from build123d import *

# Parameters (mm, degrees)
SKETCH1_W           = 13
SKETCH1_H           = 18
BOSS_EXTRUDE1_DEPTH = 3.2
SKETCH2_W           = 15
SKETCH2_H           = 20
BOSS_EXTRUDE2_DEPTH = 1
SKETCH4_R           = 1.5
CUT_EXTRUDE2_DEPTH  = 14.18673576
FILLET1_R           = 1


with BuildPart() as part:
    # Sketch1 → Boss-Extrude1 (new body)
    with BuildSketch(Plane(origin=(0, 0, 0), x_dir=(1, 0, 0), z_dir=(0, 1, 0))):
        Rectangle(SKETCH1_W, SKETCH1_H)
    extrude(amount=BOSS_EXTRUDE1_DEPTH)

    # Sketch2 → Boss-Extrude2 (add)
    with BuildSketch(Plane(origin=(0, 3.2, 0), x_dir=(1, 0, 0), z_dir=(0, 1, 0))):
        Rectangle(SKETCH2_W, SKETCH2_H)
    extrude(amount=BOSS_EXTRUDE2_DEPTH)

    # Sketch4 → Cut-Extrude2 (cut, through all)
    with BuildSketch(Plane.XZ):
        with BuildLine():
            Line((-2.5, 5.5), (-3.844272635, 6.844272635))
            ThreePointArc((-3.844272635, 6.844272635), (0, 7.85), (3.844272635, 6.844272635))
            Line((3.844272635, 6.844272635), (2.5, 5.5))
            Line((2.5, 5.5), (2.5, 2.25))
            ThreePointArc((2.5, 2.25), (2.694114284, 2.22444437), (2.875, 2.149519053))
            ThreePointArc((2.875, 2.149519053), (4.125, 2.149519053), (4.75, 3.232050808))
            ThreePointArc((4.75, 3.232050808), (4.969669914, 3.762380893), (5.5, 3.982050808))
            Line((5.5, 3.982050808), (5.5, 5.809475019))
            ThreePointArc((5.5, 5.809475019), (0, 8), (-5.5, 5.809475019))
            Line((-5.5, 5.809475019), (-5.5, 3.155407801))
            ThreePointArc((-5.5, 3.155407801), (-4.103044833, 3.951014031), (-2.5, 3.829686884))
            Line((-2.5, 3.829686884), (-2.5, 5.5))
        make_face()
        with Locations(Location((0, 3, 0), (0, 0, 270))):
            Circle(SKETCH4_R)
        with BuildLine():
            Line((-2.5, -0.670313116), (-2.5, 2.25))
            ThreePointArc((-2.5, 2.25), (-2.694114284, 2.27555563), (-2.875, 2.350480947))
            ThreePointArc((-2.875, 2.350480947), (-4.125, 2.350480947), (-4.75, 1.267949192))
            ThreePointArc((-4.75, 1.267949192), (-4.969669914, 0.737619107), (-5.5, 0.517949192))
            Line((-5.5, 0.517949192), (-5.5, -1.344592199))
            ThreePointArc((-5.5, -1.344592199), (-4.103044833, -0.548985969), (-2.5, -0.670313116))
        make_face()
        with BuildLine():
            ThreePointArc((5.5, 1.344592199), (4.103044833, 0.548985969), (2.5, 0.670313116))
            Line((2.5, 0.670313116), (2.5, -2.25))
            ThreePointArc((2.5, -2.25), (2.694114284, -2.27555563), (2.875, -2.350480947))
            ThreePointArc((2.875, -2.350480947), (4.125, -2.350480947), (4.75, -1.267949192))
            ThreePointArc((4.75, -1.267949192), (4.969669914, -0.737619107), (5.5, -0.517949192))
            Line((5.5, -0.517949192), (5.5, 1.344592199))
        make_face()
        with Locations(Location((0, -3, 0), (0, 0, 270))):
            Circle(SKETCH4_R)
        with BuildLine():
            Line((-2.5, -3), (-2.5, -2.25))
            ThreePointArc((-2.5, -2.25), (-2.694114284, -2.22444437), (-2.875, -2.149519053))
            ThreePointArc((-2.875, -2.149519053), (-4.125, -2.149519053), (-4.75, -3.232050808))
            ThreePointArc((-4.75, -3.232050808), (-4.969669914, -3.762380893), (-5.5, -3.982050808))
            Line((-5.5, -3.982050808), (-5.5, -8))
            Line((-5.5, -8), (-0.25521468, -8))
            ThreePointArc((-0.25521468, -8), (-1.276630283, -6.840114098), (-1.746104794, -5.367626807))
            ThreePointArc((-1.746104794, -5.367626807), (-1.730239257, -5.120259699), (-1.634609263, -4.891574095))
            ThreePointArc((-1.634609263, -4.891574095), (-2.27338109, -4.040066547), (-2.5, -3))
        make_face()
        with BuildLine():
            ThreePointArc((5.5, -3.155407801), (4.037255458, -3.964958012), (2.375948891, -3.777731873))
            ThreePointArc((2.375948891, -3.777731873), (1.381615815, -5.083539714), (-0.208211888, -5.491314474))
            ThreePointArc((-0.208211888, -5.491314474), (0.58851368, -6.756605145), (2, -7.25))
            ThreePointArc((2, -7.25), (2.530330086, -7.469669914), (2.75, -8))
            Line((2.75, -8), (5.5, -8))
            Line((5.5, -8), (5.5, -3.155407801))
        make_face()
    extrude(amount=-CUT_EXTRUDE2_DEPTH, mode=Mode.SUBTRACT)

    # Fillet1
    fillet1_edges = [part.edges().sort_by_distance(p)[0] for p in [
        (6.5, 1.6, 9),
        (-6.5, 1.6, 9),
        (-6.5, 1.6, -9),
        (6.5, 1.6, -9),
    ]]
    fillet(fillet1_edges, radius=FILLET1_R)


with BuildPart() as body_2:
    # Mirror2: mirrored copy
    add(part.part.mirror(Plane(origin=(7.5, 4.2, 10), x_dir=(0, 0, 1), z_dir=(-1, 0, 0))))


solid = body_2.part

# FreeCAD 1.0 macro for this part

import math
import FreeCAD as App
import Part
import Sketcher
Q = App.Units.Quantity


def edges_at(feature, points):
    """Names of the edges that pass closest to the given points."""
    edges = feature.Shape.Edges
    near = lambda p: min(range(len(edges)), key=lambda i: edges[i].distToShape(Part.Vertex(*p))[0])
    return sorted({f"Edge{near(p) + 1}" for p in points})


def add_polygon(sketch, points):
    """Adds a closed chain of lines whose ends are joined by coincident constraints."""
    first, n = sketch.GeometryCount, len(points)
    for a, b in zip(points, points[1:] + points[:1]):
        sketch.addGeometry(Part.LineSegment(App.Vector(*a, 0), App.Vector(*b, 0)), False)
    for i in range(n):
        sketch.addConstraint(Sketcher.Constraint("Coincident", first + i, 2, first + (i + 1) % n, 1))

doc = App.newDocument("Part")
params = doc.addObject("Spreadsheet::Sheet", "Params")
for row, (alias, value) in enumerate([
    ("sketch1_width", "13 mm"),
    ("sketch1_height", "18 mm"),
    ("pad1_length", "3.2 mm"),
    ("sketch2_width", "15 mm"),
    ("sketch2_height", "20 mm"),
    ("pad2_length", "1 mm"),
    ("sketch3_diameter", "3 mm"),
    ("sketch3_radius", "8 mm"),
    ("sketch3_radius2", "2.5 mm"),
    ("sketch3_radius3", "7.85 mm"),
    ("sketch3_radius4", "0.75 mm"),
    ("fillet_radius", "1 mm"),
], start=1):
    params.set(f"A{row}", alias)
    params.set(f"B{row}", "=" + value)
    params.setAlias(f"B{row}", alias)

body = doc.addObject("PartDesign::Body", "Body")

sketch1 = doc.addObject("Sketcher::SketchObject", "Sketch")
body.addObject(sketch1)
sketch1.AttachmentSupport = (doc.XZ_Plane, [""])
sketch1.MapMode = "FlatFace"
add_polygon(sketch1, [(-6.5, -9), (-6.5, 9), (6.5, 9), (6.5, -9)])
sketch1.addConstraint(Sketcher.Constraint("Vertical", 0))
sketch1.addConstraint(Sketcher.Constraint("Horizontal", 1))
sketch1.addConstraint(Sketcher.Constraint("Vertical", 2))
sketch1.addConstraint(Sketcher.Constraint("Horizontal", 3))
sketch1.addConstraint(Sketcher.Constraint("Symmetric", 0, 2, 2, 2, -1, 1))
sketch1.addConstraint(Sketcher.Constraint("DistanceX", 1, 1, 1, 2, Q("13 mm")))
sketch1.addConstraint(Sketcher.Constraint("DistanceY", 0, 1, 0, 2, Q("18 mm")))
sketch1.setExpression("Constraints[9]", "Params.sketch1_width")
sketch1.setExpression("Constraints[10]", "Params.sketch1_height")
pad1 = doc.addObject("PartDesign::Pad", "Pad")
body.addObject(pad1)
pad1.Profile = sketch1
pad1.setExpression("Length", "Params.pad1_length")
pad1.Reversed = True

sketch2 = doc.addObject("Sketcher::SketchObject", "Sketch001")
body.addObject(sketch2)
sketch2.AttachmentSupport = (doc.XZ_Plane, [""])
sketch2.MapMode = "FlatFace"
sketch2.AttachmentOffset = App.Placement(App.Vector(0, 0, -3.2), App.Rotation())
add_polygon(sketch2, [(-7.5, -10), (-7.5, 10), (7.5, 10), (7.5, -10)])
sketch2.addConstraint(Sketcher.Constraint("Vertical", 0))
sketch2.addConstraint(Sketcher.Constraint("Horizontal", 1))
sketch2.addConstraint(Sketcher.Constraint("Vertical", 2))
sketch2.addConstraint(Sketcher.Constraint("Horizontal", 3))
sketch2.addConstraint(Sketcher.Constraint("Symmetric", 0, 2, 2, 2, -1, 1))
sketch2.addConstraint(Sketcher.Constraint("DistanceX", 1, 1, 1, 2, Q("15 mm")))
sketch2.addConstraint(Sketcher.Constraint("DistanceY", 0, 1, 0, 2, Q("20 mm")))
sketch2.setExpression("Constraints[9]", "Params.sketch2_width")
sketch2.setExpression("Constraints[10]", "Params.sketch2_height")
pad2 = doc.addObject("PartDesign::Pad", "Pad001")
body.addObject(pad2)
pad2.Profile = sketch2
pad2.setExpression("Length", "Params.pad2_length")
pad2.Reversed = True

sketch3 = doc.addObject("Sketcher::SketchObject", "Sketch002")
body.addObject(sketch3)
sketch3.AttachmentSupport = (doc.XZ_Plane, [""])
sketch3.MapMode = "FlatFace"
sketch3.addGeometry(Part.LineSegment(App.Vector(-2.5, 5.5, 0), App.Vector(-3.844273, 6.844273, 0)), False)
sketch3.addGeometry(Part.ArcOfCircle(Part.Circle(App.Vector(0, 0, 0), App.Vector(0, 0, 1), 7.85), math.radians(60.678066), math.radians(119.321934)), False)
sketch3.addGeometry(Part.LineSegment(App.Vector(3.844273, 6.844273, 0), App.Vector(2.5, 5.5, 0)), False)
sketch3.addGeometry(Part.LineSegment(App.Vector(2.5, 5.5, 0), App.Vector(2.5, 2.25, 0)), False)
sketch3.addGeometry(Part.ArcOfCircle(Part.Circle(App.Vector(2.5, 1.5, 0), App.Vector(0, 0, 1), 0.75), math.radians(60), math.radians(90)), False)
sketch3.addGeometry(Part.ArcOfCircle(Part.Circle(App.Vector(3.5, 3.232051, 0), App.Vector(0, 0, 1), 1.25), math.radians(-120), math.radians(0)), False)
sketch3.addGeometry(Part.ArcOfCircle(Part.Circle(App.Vector(5.5, 3.232051, 0), App.Vector(0, 0, 1), 0.75), math.radians(90), math.radians(180)), False)
sketch3.addGeometry(Part.LineSegment(App.Vector(5.5, 3.982051, 0), App.Vector(5.5, 5.809475, 0)), False)
sketch3.addGeometry(Part.ArcOfCircle(Part.Circle(App.Vector(0, 0, 0), App.Vector(0, 0, 1), 8), math.radians(46.567463), math.radians(133.432537)), False)
sketch3.addGeometry(Part.LineSegment(App.Vector(-5.5, 5.809475, 0), App.Vector(-5.5, 3.155408, 0)), False)
sketch3.addGeometry(Part.ArcOfCircle(Part.Circle(App.Vector(-3.5, 1.267949, 0), App.Vector(0, 0, 1), 2.75), math.radians(68.676314), math.radians(136.658242)), False)
sketch3.addGeometry(Part.LineSegment(App.Vector(-2.5, 3.829687, 0), App.Vector(-2.5, 5.5, 0)), False)
sketch3.addGeometry(Part.Circle(App.Vector(0, 3, 0), App.Vector(0, 0, 1), 1.5), False)
sketch3.addGeometry(Part.LineSegment(App.Vector(-2.5, -0.670313, 0), App.Vector(-2.5, 2.25, 0)), False)
sketch3.addGeometry(Part.ArcOfCircle(Part.Circle(App.Vector(-2.5, 3, 0), App.Vector(0, 0, 1), 0.75), math.radians(-120), math.radians(-90)), False)
sketch3.addGeometry(Part.ArcOfCircle(Part.Circle(App.Vector(-3.5, 1.267949, 0), App.Vector(0, 0, 1), 1.25), math.radians(60), math.radians(180)), False)
sketch3.addGeometry(Part.ArcOfCircle(Part.Circle(App.Vector(-5.5, 1.267949, 0), App.Vector(0, 0, 1), 0.75), math.radians(-90), math.radians(0)), False)
sketch3.addGeometry(Part.LineSegment(App.Vector(-5.5, 0.517949, 0), App.Vector(-5.5, -1.344592, 0)), False)
sketch3.addGeometry(Part.ArcOfCircle(Part.Circle(App.Vector(-3.5, -3.232051, 0), App.Vector(0, 0, 1), 2.75), math.radians(68.676314), math.radians(136.658242)), False)
sketch3.addGeometry(Part.ArcOfCircle(Part.Circle(App.Vector(3.5, 3.232051, 0), App.Vector(0, 0, 1), 2.75), math.radians(-111.323686), math.radians(-43.341758)), False)
sketch3.addGeometry(Part.LineSegment(App.Vector(2.5, 0.670313, 0), App.Vector(2.5, -2.25, 0)), False)
sketch3.addGeometry(Part.ArcOfCircle(Part.Circle(App.Vector(2.5, -3, 0), App.Vector(0, 0, 1), 0.75), math.radians(60), math.radians(90)), False)
sketch3.addGeometry(Part.ArcOfCircle(Part.Circle(App.Vector(3.5, -1.267949, 0), App.Vector(0, 0, 1), 1.25), math.radians(-120), math.radians(0)), False)
sketch3.addGeometry(Part.ArcOfCircle(Part.Circle(App.Vector(5.5, -1.267949, 0), App.Vector(0, 0, 1), 0.75), math.radians(90), math.radians(180)), False)
sketch3.addGeometry(Part.LineSegment(App.Vector(5.5, -0.517949, 0), App.Vector(5.5, 1.344592, 0)), False)
sketch3.addGeometry(Part.Circle(App.Vector(0, -3, 0), App.Vector(0, 0, 1), 1.5), False)
sketch3.addGeometry(Part.LineSegment(App.Vector(-2.5, -3, 0), App.Vector(-2.5, -2.25, 0)), False)
sketch3.addGeometry(Part.ArcOfCircle(Part.Circle(App.Vector(-2.5, -1.5, 0), App.Vector(0, 0, 1), 0.75), math.radians(-120), math.radians(-90)), False)
sketch3.addGeometry(Part.ArcOfCircle(Part.Circle(App.Vector(-3.5, -3.232051, 0), App.Vector(0, 0, 1), 1.25), math.radians(60), math.radians(180)), False)
sketch3.addGeometry(Part.ArcOfCircle(Part.Circle(App.Vector(-5.5, -3.232051, 0), App.Vector(0, 0, 1), 0.75), math.radians(-90), math.radians(0)), False)
sketch3.addGeometry(Part.LineSegment(App.Vector(-5.5, -3.982051, 0), App.Vector(-5.5, -8, 0)), False)
sketch3.addGeometry(Part.LineSegment(App.Vector(-5.5, -8, 0), App.Vector(-0.255215, -8, 0)), False)
sketch3.addGeometry(Part.ArcOfCircle(Part.Circle(App.Vector(2, -4.984338, 0), App.Vector(0, 0, 1), 3.765662), math.radians(-174.158016), math.radians(-126.790389)), False)
sketch3.addGeometry(Part.ArcOfCircle(Part.Circle(App.Vector(-1, -5.291288, 0), App.Vector(0, 0, 1), 0.75), math.radians(147.794895), math.radians(185.841984)), False)
sketch3.addGeometry(Part.ArcOfCircle(Part.Circle(App.Vector(0, -3, 0), App.Vector(0, 0, 1), 2.5), math.radians(180), math.radians(229.167968)), False)
sketch3.addGeometry(Part.ArcOfCircle(Part.Circle(App.Vector(3.5, -1.267949, 0), App.Vector(0, 0, 1), 2.75), math.radians(-114.126076), math.radians(-43.341758)), False)
sketch3.addGeometry(Part.ArcOfCircle(Part.Circle(App.Vector(0, -3, 0), App.Vector(0, 0, 1), 2.5), math.radians(-94.777399), math.radians(-18.125097)), False)
sketch3.addGeometry(Part.ArcOfCircle(Part.Circle(App.Vector(2, -4.984338, 0), App.Vector(0, 0, 1), 2.265662), math.radians(-167.069714), math.radians(-90)), False)
sketch3.addGeometry(Part.ArcOfCircle(Part.Circle(App.Vector(2, -8, 0), App.Vector(0, 0, 1), 0.75), math.radians(0), math.radians(90)), False)
sketch3.addGeometry(Part.LineSegment(App.Vector(2.75, -8, 0), App.Vector(5.5, -8, 0)), False)
sketch3.addGeometry(Part.LineSegment(App.Vector(5.5, -8, 0), App.Vector(5.5, -3.155408, 0)), False)
sketch3.addConstraint(Sketcher.Constraint("Coincident", 0, 2, 1, 2))
sketch3.addConstraint(Sketcher.Constraint("Coincident", 1, 1, 2, 1))
sketch3.addConstraint(Sketcher.Constraint("Coincident", 2, 2, 3, 1))
sketch3.addConstraint(Sketcher.Constraint("Coincident", 3, 2, 4, 2))
sketch3.addConstraint(Sketcher.Constraint("Tangent", 4, 1, 5, 1))
sketch3.addConstraint(Sketcher.Constraint("Tangent", 5, 2, 6, 2))
sketch3.addConstraint(Sketcher.Constraint("Coincident", 6, 1, 7, 1))
sketch3.addConstraint(Sketcher.Constraint("Coincident", 7, 2, 8, 1))
sketch3.addConstraint(Sketcher.Constraint("Coincident", 8, 2, 9, 1))
sketch3.addConstraint(Sketcher.Constraint("Coincident", 9, 2, 10, 2))
sketch3.addConstraint(Sketcher.Constraint("Coincident", 10, 1, 11, 1))
sketch3.addConstraint(Sketcher.Constraint("Coincident", 11, 2, 0, 1))
sketch3.addConstraint(Sketcher.Constraint("Coincident", 13, 2, 14, 2))
sketch3.addConstraint(Sketcher.Constraint("Tangent", 14, 1, 15, 1))
sketch3.addConstraint(Sketcher.Constraint("Tangent", 15, 2, 16, 2))
sketch3.addConstraint(Sketcher.Constraint("Coincident", 16, 1, 17, 1))
sketch3.addConstraint(Sketcher.Constraint("Coincident", 17, 2, 18, 2))
sketch3.addConstraint(Sketcher.Constraint("Coincident", 18, 1, 13, 1))
sketch3.addConstraint(Sketcher.Constraint("Coincident", 19, 1, 20, 1))
sketch3.addConstraint(Sketcher.Constraint("Coincident", 20, 2, 21, 2))
sketch3.addConstraint(Sketcher.Constraint("Tangent", 21, 1, 22, 1))
sketch3.addConstraint(Sketcher.Constraint("Tangent", 22, 2, 23, 2))
sketch3.addConstraint(Sketcher.Constraint("Coincident", 23, 1, 24, 1))
sketch3.addConstraint(Sketcher.Constraint("Coincident", 24, 2, 19, 2))
sketch3.addConstraint(Sketcher.Constraint("Coincident", 26, 2, 27, 2))
sketch3.addConstraint(Sketcher.Constraint("Tangent", 27, 1, 28, 1))
sketch3.addConstraint(Sketcher.Constraint("Tangent", 28, 2, 29, 2))
sketch3.addConstraint(Sketcher.Constraint("Coincident", 29, 1, 30, 1))
sketch3.addConstraint(Sketcher.Constraint("Coincident", 30, 2, 31, 1))
sketch3.addConstraint(Sketcher.Constraint("Coincident", 31, 2, 32, 2))
sketch3.addConstraint(Sketcher.Constraint("Tangent", 32, 1, 33, 2))
sketch3.addConstraint(Sketcher.Constraint("Coincident", 33, 1, 34, 2))
sketch3.addConstraint(Sketcher.Constraint("Tangent", 34, 1, 26, 1))
sketch3.addConstraint(Sketcher.Constraint("Coincident", 35, 1, 36, 2))
sketch3.addConstraint(Sketcher.Constraint("Coincident", 36, 1, 37, 1))
sketch3.addConstraint(Sketcher.Constraint("Tangent", 37, 2, 38, 2))
sketch3.addConstraint(Sketcher.Constraint("Coincident", 38, 1, 39, 1))
sketch3.addConstraint(Sketcher.Constraint("Coincident", 39, 2, 40, 1))
sketch3.addConstraint(Sketcher.Constraint("Coincident", 40, 2, 35, 2))
sketch3.addConstraint(Sketcher.Constraint("Vertical", 3))
sketch3.addConstraint(Sketcher.Constraint("Vertical", 7))
sketch3.addConstraint(Sketcher.Constraint("Vertical", 9))
sketch3.addConstraint(Sketcher.Constraint("Vertical", 11))
sketch3.addConstraint(Sketcher.Constraint("Vertical", 13))
sketch3.addConstraint(Sketcher.Constraint("Vertical", 17))
sketch3.addConstraint(Sketcher.Constraint("Vertical", 20))
sketch3.addConstraint(Sketcher.Constraint("Vertical", 24))
sketch3.addConstraint(Sketcher.Constraint("Vertical", 26))
sketch3.addConstraint(Sketcher.Constraint("Vertical", 30))
sketch3.addConstraint(Sketcher.Constraint("Horizontal", 31))
sketch3.addConstraint(Sketcher.Constraint("Horizontal", 39))
sketch3.addConstraint(Sketcher.Constraint("Vertical", 40))
sketch3.addConstraint(Sketcher.Constraint("Coincident", 1, 3, -1, 1))
sketch3.addConstraint(Sketcher.Constraint("Coincident", 8, 3, -1, 1))
sketch3.addConstraint(Sketcher.Constraint("Coincident", 15, 3, 10, 3))
sketch3.addConstraint(Sketcher.Constraint("Coincident", 19, 3, 5, 3))
sketch3.addConstraint(Sketcher.Constraint("Coincident", 28, 3, 18, 3))
sketch3.addConstraint(Sketcher.Constraint("Coincident", 34, 3, 25, 3))
sketch3.addConstraint(Sketcher.Constraint("Coincident", 35, 3, 22, 3))
sketch3.addConstraint(Sketcher.Constraint("Coincident", 36, 3, 25, 3))
sketch3.addConstraint(Sketcher.Constraint("Coincident", 37, 3, 32, 3))
sketch3.addConstraint(Sketcher.Constraint("Equal", 4, 6))
sketch3.addConstraint(Sketcher.Constraint("Equal", 6, 14))
sketch3.addConstraint(Sketcher.Constraint("Equal", 5, 15))
sketch3.addConstraint(Sketcher.Constraint("Equal", 14, 16))
sketch3.addConstraint(Sketcher.Constraint("Equal", 10, 18))
sketch3.addConstraint(Sketcher.Constraint("Equal", 18, 19))
sketch3.addConstraint(Sketcher.Constraint("Equal", 16, 21))
sketch3.addConstraint(Sketcher.Constraint("Equal", 15, 22))
sketch3.addConstraint(Sketcher.Constraint("Equal", 21, 23))
sketch3.addConstraint(Sketcher.Constraint("Equal", 12, 25))
sketch3.addConstraint(Sketcher.Constraint("Equal", 23, 27))
sketch3.addConstraint(Sketcher.Constraint("Equal", 22, 28))
sketch3.addConstraint(Sketcher.Constraint("Equal", 27, 29))
sketch3.addConstraint(Sketcher.Constraint("Equal", 29, 33))
sketch3.addConstraint(Sketcher.Constraint("Equal", 19, 35))
sketch3.addConstraint(Sketcher.Constraint("Equal", 34, 36))
sketch3.addConstraint(Sketcher.Constraint("Equal", 33, 38))
sketch3.addConstraint(Sketcher.Constraint("Symmetric", 5, 3, 18, 3, -1, 1))
sketch3.addConstraint(Sketcher.Constraint("Symmetric", 14, 3, 21, 3, -1, 1))
sketch3.addConstraint(Sketcher.Constraint("Symmetric", 16, 3, 23, 3, -1, 1))
sketch3.addConstraint(Sketcher.Constraint("Symmetric", 12, 3, 25, 3, -1, 1))
sketch3.addConstraint(Sketcher.Constraint("Symmetric", 3, 2, 26, 2, -1, 1))
sketch3.addConstraint(Sketcher.Constraint("Symmetric", 6, 1, 29, 1, -1, 1))
sketch3.addConstraint(Sketcher.Constraint("Symmetric", 2, 2, 11, 2, -2))
sketch3.addConstraint(Sketcher.Constraint("Symmetric", 3, 2, 13, 2, -2))
sketch3.addConstraint(Sketcher.Constraint("Symmetric", 30, 2, 39, 2, -2))
sketch3.addConstraint(Sketcher.Constraint("PointOnObject", 12, 3, -2))
sketch3.addConstraint(Sketcher.Constraint("Perpendicular", 0, 2))
sketch3.addConstraint(Sketcher.Constraint("Horizontal", 5, 3, 6, 3))
sketch3.addConstraint(Sketcher.Constraint("Horizontal", 12, 3, 14, 3))
sketch3.addConstraint(Sketcher.Constraint("Horizontal", 15, 3, 16, 3))
sketch3.addConstraint(Sketcher.Constraint("Horizontal", 0, 2, 1, 1))
sketch3.addConstraint(Sketcher.Constraint("Horizontal", 7, 2, 8, 2))
sketch3.addConstraint(Sketcher.Constraint("Horizontal", 38, 3, 30, 2))
sketch3.addConstraint(Sketcher.Constraint("Vertical", 15, 3, 18, 3))
sketch3.addConstraint(Sketcher.Constraint("Vertical", 4, 3, 21, 3))
sketch3.addConstraint(Sketcher.Constraint("Vertical", 37, 3, 38, 3))
sketch3.addConstraint(Sketcher.Constraint("Vertical", 21, 3, 2, 2))
sketch3.addConstraint(Sketcher.Constraint("Vertical", 23, 3, 6, 1))
sketch3.addConstraint(Sketcher.Constraint("Vertical", 9, 2, 16, 1))
sketch3.addConstraint(Sketcher.Constraint("Vertical", 3, 2, 19, 1))
sketch3.addConstraint(Sketcher.Constraint("Vertical", 7, 2, 23, 1))
sketch3.addConstraint(Sketcher.Constraint("Diameter", 12, Q("3 mm")))
sketch3.addConstraint(Sketcher.Constraint("Radius", 8, Q("8 mm")))
sketch3.addConstraint(Sketcher.Constraint("Radius", 34, Q("2.5 mm")))
sketch3.addConstraint(Sketcher.Constraint("Radius", 1, Q("7.85 mm")))
sketch3.addConstraint(Sketcher.Constraint("Radius", 4, Q("0.75 mm")))
sketch3.addConstraint(Sketcher.Constraint("Radius", 5, Q("1.25 mm")))
sketch3.addConstraint(Sketcher.Constraint("Radius", 10, Q("2.75 mm")))
sketch3.addConstraint(Sketcher.Constraint("DistanceY", -1, 1, 12, 3, Q("3 mm")))
sketch3.addConstraint(Sketcher.Constraint("DistanceX", -1, 1, 32, 3, Q("2 mm")))
sketch3.addConstraint(Sketcher.Constraint("DistanceX", 33, 3, -1, 1, Q("1 mm")))
sketch3.addConstraint(Sketcher.Constraint("DistanceY", 38, 3, -1, 1, Q("8 mm")))
sketch3.addConstraint(Sketcher.Constraint("DistanceX", 39, 1, 39, 2, Q("2.75 mm")))
sketch3.addConstraint(Sketcher.Constraint("DistanceY", 3, 2, 3, 1, Q("3.25 mm")))
sketch3.addConstraint(Sketcher.Constraint("Radius", 32, Q("3.765662 mm")))
sketch3.addConstraint(Sketcher.Constraint("Radius", 37, Q("2.265662 mm")))
sketch3.setExpression("Constraints[103]", "Params.sketch3_diameter")
sketch3.setExpression("Constraints[104]", "Params.sketch3_radius")
sketch3.setExpression("Constraints[105]", "Params.sketch3_radius2")
sketch3.setExpression("Constraints[106]", "Params.sketch3_radius3")
sketch3.setExpression("Constraints[107]", "Params.sketch3_radius4")
pocket1 = doc.addObject("PartDesign::Pocket", "Pocket")
body.addObject(pocket1)
pocket1.Profile = sketch3
pocket1.Type = "ThroughAll"
doc.recompute()

fillet = doc.addObject("PartDesign::Fillet", "Fillet")
body.addObject(fillet)
fillet.Base = (pocket1, edges_at(pocket1, [
    (6.5, 1.6, 9),
    (-6.5, 1.6, 9),
    (-6.5, 1.6, -9),
    (6.5, 1.6, -9),
]))
fillet.setExpression("Radius", "Params.fillet_radius")
body2 = doc.addObject("PartDesign::Body", "Body001")
doc.recompute()

mirroring = doc.addObject("Part::Mirroring", "Mirroring")
mirroring.Source = body
mirroring.Base = App.Vector(7.5, 4.2, 10)
mirroring.Normal = App.Vector(-1, 0, 0)
body2.BaseFeature = mirroring
doc.recompute()
body.Visibility = False
mirroring.Visibility = False

doc.recompute()
